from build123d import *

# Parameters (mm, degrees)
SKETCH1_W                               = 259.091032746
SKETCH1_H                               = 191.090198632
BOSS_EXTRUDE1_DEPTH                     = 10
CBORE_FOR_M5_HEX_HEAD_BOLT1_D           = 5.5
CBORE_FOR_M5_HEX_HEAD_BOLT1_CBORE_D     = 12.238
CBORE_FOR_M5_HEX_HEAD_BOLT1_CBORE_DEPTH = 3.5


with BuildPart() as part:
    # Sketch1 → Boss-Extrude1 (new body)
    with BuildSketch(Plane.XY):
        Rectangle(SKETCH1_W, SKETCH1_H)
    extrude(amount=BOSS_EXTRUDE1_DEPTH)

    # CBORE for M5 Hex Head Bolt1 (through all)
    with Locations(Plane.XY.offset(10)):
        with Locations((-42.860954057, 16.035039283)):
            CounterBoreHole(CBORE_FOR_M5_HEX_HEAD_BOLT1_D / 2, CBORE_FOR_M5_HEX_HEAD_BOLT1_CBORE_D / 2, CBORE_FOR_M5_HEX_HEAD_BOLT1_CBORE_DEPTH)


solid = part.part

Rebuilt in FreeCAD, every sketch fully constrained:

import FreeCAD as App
import Part
import Sketcher


def add_polygon(sketch, points):
    """Adds a closed chain of lines whose ends are joined by coincident constraints."""
    first, n = sketch.GeometryCount, len(points)
    for a, b in zip(points, points[1:] + points[:1]):
        sketch.addGeometry(Part.LineSegment(App.Vector(*a, 0), App.Vector(*b, 0)), False)
    for i in range(n):
        sketch.addConstraint(Sketcher.Constraint("Coincident", first + i, 2, first + (i + 1) % n, 1))

doc = App.newDocument("Part")
body = doc.addObject("PartDesign::Body", "Body")

# Sketch on XY plane
sketch1 = body.newObject("Sketcher::SketchObject", "Sketch")
sketch1.AttachmentSupport = (doc.getObject("XY_Plane"), [""])
sketch1.MapMode = "FlatFace"
add_polygon(sketch1, [(-130, 96), (-130, -96), (130, -96), (130, 96)])  # lines 0-3
sketch1.addConstraint([
    Sketcher.Constraint("Vertical", 0),
    Sketcher.Constraint("Horizontal", 1),
    Sketcher.Constraint("Vertical", 2),
    Sketcher.Constraint("Horizontal", 3),
    Sketcher.Constraint("Symmetric", 0, 2, 2, 2, -1, 1),
    Sketcher.Constraint("DistanceY", 0, 2, 0, 1, 191.090199),
    Sketcher.Constraint("DistanceX", 1, 1, 1, 2, 259.091033),
])
pad1 = body.newObject("PartDesign::Pad", "Pad")
pad1.Profile = sketch1
pad1.Length = 10

# Sketch on XY plane
sketch2 = body.newObject("Sketcher::SketchObject", "Sketch001")
sketch2.AttachmentSupport = (doc.getObject("XY_Plane"), [""])
sketch2.MapMode = "FlatFace"
sketch2.AttachmentOffset = App.Placement(App.Vector(0, 0, 10), App.Rotation())
sketch2.addGeometry(Part.Circle(App.Vector(-42.9, 16, 0), App.Vector(0, 0, 1), 2.8), False)
sketch2.addConstraint([
    Sketcher.Constraint("Diameter", 0, 5.5),
    Sketcher.Constraint("DistanceY", -1, 1, 0, 3, 16.035039),
    Sketcher.Constraint("DistanceX", 0, 3, -1, 1, 42.860954),
])
doc.recompute()
hole = body.newObject("PartDesign::Hole", "Hole")
hole.Profile = sketch2
hole.ThreadType = "None"
hole.Diameter = 5.5
hole.DepthType = "ThroughAll"
hole.HoleCutType = "Counterbore"
hole.HoleCutDiameter = 12.238
hole.HoleCutDepth = 3.5

doc.recompute()
